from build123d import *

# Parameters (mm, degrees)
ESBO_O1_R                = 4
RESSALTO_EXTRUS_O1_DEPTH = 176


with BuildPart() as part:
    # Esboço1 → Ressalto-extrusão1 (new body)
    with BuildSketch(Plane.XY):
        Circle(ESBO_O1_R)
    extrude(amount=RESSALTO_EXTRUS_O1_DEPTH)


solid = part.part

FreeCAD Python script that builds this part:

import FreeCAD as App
import Part
import Sketcher

V = App.Vector

doc = App.newDocument("Part")
body = doc.addObject("PartDesign::Body", "Body")

# Sketch on XY plane
sketch1 = body.newObject("Sketcher::SketchObject", "Sketch")
sketch1.AttachmentSupport = (doc.getObject("XY_Plane"), [""])
sketch1.MapMode = "FlatFace"
sketch1.addGeometry(Part.Circle(V(0, 0, 0), V(0, 0, 1), 4), False)
sketch1.addConstraint([
    Sketcher.Constraint("Coincident", 0, 3, -1, 1),
    Sketcher.Constraint("Diameter", 0, 8.0),
])
pad1 = body.newObject("PartDesign::Pad", "Pad")
pad1.Profile = sketch1
pad1.Length = 176

doc.recompute()
